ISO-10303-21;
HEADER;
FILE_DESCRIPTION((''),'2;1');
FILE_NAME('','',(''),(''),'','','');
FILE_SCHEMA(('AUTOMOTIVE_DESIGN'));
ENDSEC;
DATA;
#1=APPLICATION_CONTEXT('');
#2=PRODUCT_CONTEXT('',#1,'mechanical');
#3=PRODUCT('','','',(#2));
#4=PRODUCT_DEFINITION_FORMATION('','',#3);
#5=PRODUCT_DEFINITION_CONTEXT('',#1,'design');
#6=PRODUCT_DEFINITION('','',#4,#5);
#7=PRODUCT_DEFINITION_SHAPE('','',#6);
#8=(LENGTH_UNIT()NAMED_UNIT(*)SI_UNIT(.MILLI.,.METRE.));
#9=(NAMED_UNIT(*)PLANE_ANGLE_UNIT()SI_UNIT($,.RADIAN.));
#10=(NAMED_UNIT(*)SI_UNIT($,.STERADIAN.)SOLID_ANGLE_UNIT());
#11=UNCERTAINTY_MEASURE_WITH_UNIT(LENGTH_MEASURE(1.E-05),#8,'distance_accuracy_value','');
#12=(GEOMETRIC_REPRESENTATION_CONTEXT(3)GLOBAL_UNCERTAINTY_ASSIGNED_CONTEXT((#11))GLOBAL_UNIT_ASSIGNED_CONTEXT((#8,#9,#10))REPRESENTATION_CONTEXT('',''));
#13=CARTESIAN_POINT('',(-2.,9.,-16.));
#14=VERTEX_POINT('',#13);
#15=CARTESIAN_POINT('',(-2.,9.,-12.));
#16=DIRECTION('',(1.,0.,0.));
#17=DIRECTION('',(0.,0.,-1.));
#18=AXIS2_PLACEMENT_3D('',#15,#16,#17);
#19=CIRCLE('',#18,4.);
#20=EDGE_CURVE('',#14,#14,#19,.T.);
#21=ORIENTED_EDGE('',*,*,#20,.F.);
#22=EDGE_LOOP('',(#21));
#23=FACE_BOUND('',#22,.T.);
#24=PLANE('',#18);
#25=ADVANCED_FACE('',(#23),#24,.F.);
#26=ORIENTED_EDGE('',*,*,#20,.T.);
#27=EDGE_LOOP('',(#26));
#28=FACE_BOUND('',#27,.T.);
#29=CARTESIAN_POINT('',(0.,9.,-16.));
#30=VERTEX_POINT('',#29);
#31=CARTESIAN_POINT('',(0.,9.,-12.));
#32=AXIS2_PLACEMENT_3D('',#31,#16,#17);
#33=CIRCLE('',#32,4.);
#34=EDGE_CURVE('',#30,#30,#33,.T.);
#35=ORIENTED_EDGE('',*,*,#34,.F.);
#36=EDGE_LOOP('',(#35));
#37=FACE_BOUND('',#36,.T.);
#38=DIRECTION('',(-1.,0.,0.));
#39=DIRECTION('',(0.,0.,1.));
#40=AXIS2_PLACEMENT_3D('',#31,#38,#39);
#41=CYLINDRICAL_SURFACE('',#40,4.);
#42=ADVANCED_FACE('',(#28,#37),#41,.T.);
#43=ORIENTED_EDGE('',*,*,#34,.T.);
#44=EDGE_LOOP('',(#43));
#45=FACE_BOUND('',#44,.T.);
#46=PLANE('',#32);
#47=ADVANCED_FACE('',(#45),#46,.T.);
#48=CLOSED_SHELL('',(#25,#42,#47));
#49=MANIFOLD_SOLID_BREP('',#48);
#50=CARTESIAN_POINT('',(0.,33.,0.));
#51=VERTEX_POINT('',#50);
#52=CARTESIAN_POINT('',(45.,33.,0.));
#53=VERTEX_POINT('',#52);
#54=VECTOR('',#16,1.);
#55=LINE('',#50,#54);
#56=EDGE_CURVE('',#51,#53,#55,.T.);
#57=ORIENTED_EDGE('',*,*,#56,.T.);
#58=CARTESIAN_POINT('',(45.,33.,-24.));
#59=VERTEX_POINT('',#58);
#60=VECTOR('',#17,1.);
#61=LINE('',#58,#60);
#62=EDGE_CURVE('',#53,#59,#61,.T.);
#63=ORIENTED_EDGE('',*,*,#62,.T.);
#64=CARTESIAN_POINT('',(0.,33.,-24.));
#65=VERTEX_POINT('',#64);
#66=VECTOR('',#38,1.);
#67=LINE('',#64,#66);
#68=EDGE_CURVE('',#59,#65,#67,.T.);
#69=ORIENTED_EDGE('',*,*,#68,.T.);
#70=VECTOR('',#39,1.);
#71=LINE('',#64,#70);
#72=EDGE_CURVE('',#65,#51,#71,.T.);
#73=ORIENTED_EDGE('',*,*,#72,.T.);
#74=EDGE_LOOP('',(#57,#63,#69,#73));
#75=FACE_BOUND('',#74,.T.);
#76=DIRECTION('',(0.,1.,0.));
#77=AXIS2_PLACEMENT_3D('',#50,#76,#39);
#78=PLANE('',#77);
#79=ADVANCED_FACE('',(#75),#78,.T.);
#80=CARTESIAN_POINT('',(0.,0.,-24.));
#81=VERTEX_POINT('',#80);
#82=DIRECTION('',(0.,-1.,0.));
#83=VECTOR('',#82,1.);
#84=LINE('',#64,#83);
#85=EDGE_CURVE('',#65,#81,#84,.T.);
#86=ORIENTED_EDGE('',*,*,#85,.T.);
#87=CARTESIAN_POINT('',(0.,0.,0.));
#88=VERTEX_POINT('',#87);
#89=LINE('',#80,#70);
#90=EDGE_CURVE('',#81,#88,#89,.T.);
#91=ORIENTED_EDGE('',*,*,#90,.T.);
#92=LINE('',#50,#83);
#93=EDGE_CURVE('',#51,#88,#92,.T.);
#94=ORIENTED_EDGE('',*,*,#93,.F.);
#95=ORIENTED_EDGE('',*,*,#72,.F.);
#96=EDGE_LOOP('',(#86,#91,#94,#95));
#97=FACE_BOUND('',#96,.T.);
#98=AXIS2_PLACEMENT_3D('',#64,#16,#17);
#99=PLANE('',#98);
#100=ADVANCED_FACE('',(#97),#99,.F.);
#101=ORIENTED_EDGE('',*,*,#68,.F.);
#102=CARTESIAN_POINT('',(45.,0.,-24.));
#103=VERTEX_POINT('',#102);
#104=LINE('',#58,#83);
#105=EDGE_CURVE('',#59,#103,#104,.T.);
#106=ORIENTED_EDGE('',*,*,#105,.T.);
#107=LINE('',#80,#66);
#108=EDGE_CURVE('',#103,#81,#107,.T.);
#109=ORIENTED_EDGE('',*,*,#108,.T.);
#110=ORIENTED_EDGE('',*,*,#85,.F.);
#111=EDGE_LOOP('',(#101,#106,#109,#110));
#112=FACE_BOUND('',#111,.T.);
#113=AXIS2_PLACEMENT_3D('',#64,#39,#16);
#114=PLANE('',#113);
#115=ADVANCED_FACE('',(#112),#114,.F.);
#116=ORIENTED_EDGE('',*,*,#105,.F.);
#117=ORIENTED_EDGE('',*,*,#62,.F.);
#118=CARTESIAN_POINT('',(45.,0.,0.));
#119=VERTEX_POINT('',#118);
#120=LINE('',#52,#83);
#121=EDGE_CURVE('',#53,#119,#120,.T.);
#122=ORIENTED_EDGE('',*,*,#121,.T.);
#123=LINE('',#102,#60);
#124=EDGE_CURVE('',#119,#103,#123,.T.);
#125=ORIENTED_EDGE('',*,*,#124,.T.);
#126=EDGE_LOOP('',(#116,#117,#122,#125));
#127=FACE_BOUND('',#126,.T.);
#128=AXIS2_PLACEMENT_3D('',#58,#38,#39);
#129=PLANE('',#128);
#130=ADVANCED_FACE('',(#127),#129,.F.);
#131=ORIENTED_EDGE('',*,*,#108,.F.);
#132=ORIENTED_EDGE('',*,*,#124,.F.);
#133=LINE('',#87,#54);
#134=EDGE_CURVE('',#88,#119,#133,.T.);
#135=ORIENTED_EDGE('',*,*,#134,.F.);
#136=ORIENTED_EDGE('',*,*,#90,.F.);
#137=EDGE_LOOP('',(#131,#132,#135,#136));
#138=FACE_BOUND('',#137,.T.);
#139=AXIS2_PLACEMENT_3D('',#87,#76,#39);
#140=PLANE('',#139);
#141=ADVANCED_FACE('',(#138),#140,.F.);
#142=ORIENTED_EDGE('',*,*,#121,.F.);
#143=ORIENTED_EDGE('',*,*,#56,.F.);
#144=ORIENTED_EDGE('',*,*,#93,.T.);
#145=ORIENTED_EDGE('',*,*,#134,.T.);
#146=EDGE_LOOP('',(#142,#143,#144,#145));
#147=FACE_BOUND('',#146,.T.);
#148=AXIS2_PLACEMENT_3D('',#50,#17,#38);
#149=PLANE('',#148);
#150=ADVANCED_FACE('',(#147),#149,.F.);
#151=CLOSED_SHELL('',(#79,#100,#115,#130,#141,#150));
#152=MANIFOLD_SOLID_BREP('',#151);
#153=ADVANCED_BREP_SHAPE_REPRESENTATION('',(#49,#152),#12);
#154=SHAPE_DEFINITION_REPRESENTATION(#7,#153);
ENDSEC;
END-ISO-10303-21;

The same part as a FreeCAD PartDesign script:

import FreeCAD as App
import Part
import Sketcher
from FreeCAD import Vector

doc = App.newDocument("Part")
body = doc.addObject("PartDesign::Body", "Body")

sketch1 = doc.addObject("Sketcher::SketchObject", "Sketch")
body.addObject(sketch1)
sketch1.AttachmentSupport = (doc.XZ_Plane, [""])
sketch1.MapMode = "FlatFace"
sketch1.addGeometry([
    Part.LineSegment(Vector(0, -24, 0), Vector(0, 0, 0)),
    Part.LineSegment(Vector(0, 0, 0), Vector(45, 0, 0)),
    Part.LineSegment(Vector(45, 0, 0), Vector(45, -24, 0)),
    Part.LineSegment(Vector(45, -24, 0), Vector(0, -24, 0)),
], False)
sketch1.addConstraint([
    Sketcher.Constraint("Coincident", 0, 2, 1, 1),
    Sketcher.Constraint("Coincident", 1, 2, 2, 1),
    Sketcher.Constraint("Coincident", 2, 2, 3, 1),
    Sketcher.Constraint("Coincident", 3, 2, 0, 1),
    Sketcher.Constraint("Vertical", 0),
    Sketcher.Constraint("Horizontal", 1),
    Sketcher.Constraint("Vertical", 2),
    Sketcher.Constraint("Horizontal", 3),
    Sketcher.Constraint("Coincident", 0, 2, -1, 1),
    Sketcher.Constraint("DistanceX", 1, 1, 1, 2, 45.0),
    Sketcher.Constraint("DistanceY", 0, 1, 0, 2, 24.0),
])
pad1 = doc.addObject("PartDesign::Pad", "Pad")
body.addObject(pad1)
pad1.Profile = sketch1
pad1.Length = 33
pad1.Reversed = True
body2 = doc.addObject("PartDesign::Body", "Body001")

sketch2 = doc.addObject("Sketcher::SketchObject", "Sketch001")
body2.addObject(sketch2)
sketch2.AttachmentSupport = (doc.getObject("YZ_Plane001"), [""])
sketch2.MapMode = "FlatFace"
sketch2.AttachmentOffset = App.Placement(Vector(0, 0, -2), App.Rotation())
sketch2.addGeometry(Part.Circle(Vector(9, -12, 0), Vector(0, 0, 1), 4), False)
sketch2.addConstraint([
    Sketcher.Constraint("Diameter", 0, 8.0),
    Sketcher.Constraint("DistanceX", -1, 1, 0, 3, 9.0),
    Sketcher.Constraint("DistanceY", 0, 3, -1, 1, 12.0),
])
pad2 = doc.addObject("PartDesign::Pad", "Pad001")
body2.addObject(pad2)
pad2.Profile = sketch2
pad2.Length = 2

doc.recompute()
